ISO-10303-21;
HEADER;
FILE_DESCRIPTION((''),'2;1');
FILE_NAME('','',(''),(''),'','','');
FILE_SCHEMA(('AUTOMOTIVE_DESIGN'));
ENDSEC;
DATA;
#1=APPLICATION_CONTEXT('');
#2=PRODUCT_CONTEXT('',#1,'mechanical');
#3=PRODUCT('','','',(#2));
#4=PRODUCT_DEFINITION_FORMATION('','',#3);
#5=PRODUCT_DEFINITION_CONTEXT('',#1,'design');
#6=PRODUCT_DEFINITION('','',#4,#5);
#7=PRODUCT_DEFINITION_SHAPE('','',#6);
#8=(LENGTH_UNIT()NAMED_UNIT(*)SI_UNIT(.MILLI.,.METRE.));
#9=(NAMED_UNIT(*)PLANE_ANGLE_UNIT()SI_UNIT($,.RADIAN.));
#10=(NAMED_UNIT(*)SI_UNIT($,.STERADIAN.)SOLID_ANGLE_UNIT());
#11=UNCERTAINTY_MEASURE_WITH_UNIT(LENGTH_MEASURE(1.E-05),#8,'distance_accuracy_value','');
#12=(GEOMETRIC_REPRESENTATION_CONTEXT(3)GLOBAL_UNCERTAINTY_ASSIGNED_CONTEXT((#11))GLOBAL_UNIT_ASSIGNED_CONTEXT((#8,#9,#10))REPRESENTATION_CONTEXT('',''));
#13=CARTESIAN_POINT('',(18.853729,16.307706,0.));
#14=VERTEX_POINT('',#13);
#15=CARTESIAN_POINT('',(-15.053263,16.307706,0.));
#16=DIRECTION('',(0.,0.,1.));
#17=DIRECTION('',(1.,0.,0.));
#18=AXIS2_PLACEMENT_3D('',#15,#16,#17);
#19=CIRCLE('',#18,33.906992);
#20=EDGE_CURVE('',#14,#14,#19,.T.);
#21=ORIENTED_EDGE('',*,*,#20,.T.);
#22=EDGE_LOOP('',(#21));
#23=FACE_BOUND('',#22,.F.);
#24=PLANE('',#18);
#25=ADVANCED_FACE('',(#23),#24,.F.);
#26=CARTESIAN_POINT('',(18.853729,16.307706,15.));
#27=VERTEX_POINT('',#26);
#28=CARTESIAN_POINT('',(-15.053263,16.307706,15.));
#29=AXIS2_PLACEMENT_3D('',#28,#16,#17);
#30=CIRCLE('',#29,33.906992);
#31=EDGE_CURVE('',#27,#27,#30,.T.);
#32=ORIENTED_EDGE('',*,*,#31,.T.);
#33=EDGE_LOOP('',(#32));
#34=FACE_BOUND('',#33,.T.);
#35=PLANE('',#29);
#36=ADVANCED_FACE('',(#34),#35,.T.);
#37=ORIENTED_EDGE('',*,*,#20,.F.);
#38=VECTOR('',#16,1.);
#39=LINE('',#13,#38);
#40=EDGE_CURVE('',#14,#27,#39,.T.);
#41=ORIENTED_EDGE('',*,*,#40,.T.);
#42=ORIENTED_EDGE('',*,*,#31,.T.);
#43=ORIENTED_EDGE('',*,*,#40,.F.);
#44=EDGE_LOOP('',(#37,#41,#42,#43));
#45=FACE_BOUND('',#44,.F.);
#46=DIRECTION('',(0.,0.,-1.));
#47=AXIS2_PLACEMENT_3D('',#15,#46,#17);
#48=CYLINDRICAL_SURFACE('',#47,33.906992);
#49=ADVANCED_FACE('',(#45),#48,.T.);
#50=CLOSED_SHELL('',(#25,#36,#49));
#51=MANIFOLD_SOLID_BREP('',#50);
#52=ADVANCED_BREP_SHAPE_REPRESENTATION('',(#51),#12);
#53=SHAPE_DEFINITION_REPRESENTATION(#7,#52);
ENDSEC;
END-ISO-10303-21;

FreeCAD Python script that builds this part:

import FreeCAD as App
import Part
import Sketcher

V = App.Vector

doc = App.newDocument("Part")
params = doc.addObject("Spreadsheet::Sheet", "Params")
for row, (alias, value) in enumerate([
    ("pad1_length", "15 mm"),
    ("pad2_length", "10 mm"),
], start=1):
    params.set(f"A{row}", alias)
    params.set(f"B{row}", "=" + value)
    params.setAlias(f"B{row}", alias)

body = doc.addObject("PartDesign::Body", "Body")

# Sketch on XY plane
sketch1 = body.newObject("Sketcher::SketchObject", "Sketch")
sketch1.AttachmentSupport = (doc.getObject("XY_Plane"), [""])
sketch1.MapMode = "FlatFace"
sketch1.addGeometry(Part.Circle(V(-15, 16, 0), V(0, 0, 1), 34), False)
sketch1.addConstraint(Sketcher.Constraint("Diameter", 0, 67.813984))
sketch1.addConstraint(Sketcher.Constraint("DistanceX", 0, 3, -1, 1, 15.053263))
sketch1.addConstraint(Sketcher.Constraint("DistanceY", -1, 1, 0, 3, 16.307706))
pad1 = body.newObject("PartDesign::Pad", "Pad")
pad1.Profile = sketch1
pad1.setExpression("Length", "Params.pad1_length")

# Sketch on XY plane
sketch2 = body.newObject("Sketcher::SketchObject", "Sketch001")
sketch2.AttachmentSupport = (doc.getObject("XY_Plane"), [""])
sketch2.MapMode = "FlatFace"
sketch2.AttachmentOffset = App.Placement(V(0, 0, 15), App.Rotation())
sketch2.addGeometry(Part.Circle(V(-15, 16, 0), V(0, 0, 1), 28), False)
sketch2.addConstraint(Sketcher.Constraint("Diameter", 0, 55.951646))
sketch2.addConstraint(Sketcher.Constraint("DistanceX", 0, 3, -1, 1, 15.053263))
sketch2.addConstraint(Sketcher.Constraint("DistanceY", -1, 1, 0, 3, 16.307706))
pad2 = body.newObject("PartDesign::Pad", "Pad001")
pad2.Profile = sketch2
pad2.setExpression("Length", "Params.pad2_length")
pad2.Reversed = True

doc.recompute()
